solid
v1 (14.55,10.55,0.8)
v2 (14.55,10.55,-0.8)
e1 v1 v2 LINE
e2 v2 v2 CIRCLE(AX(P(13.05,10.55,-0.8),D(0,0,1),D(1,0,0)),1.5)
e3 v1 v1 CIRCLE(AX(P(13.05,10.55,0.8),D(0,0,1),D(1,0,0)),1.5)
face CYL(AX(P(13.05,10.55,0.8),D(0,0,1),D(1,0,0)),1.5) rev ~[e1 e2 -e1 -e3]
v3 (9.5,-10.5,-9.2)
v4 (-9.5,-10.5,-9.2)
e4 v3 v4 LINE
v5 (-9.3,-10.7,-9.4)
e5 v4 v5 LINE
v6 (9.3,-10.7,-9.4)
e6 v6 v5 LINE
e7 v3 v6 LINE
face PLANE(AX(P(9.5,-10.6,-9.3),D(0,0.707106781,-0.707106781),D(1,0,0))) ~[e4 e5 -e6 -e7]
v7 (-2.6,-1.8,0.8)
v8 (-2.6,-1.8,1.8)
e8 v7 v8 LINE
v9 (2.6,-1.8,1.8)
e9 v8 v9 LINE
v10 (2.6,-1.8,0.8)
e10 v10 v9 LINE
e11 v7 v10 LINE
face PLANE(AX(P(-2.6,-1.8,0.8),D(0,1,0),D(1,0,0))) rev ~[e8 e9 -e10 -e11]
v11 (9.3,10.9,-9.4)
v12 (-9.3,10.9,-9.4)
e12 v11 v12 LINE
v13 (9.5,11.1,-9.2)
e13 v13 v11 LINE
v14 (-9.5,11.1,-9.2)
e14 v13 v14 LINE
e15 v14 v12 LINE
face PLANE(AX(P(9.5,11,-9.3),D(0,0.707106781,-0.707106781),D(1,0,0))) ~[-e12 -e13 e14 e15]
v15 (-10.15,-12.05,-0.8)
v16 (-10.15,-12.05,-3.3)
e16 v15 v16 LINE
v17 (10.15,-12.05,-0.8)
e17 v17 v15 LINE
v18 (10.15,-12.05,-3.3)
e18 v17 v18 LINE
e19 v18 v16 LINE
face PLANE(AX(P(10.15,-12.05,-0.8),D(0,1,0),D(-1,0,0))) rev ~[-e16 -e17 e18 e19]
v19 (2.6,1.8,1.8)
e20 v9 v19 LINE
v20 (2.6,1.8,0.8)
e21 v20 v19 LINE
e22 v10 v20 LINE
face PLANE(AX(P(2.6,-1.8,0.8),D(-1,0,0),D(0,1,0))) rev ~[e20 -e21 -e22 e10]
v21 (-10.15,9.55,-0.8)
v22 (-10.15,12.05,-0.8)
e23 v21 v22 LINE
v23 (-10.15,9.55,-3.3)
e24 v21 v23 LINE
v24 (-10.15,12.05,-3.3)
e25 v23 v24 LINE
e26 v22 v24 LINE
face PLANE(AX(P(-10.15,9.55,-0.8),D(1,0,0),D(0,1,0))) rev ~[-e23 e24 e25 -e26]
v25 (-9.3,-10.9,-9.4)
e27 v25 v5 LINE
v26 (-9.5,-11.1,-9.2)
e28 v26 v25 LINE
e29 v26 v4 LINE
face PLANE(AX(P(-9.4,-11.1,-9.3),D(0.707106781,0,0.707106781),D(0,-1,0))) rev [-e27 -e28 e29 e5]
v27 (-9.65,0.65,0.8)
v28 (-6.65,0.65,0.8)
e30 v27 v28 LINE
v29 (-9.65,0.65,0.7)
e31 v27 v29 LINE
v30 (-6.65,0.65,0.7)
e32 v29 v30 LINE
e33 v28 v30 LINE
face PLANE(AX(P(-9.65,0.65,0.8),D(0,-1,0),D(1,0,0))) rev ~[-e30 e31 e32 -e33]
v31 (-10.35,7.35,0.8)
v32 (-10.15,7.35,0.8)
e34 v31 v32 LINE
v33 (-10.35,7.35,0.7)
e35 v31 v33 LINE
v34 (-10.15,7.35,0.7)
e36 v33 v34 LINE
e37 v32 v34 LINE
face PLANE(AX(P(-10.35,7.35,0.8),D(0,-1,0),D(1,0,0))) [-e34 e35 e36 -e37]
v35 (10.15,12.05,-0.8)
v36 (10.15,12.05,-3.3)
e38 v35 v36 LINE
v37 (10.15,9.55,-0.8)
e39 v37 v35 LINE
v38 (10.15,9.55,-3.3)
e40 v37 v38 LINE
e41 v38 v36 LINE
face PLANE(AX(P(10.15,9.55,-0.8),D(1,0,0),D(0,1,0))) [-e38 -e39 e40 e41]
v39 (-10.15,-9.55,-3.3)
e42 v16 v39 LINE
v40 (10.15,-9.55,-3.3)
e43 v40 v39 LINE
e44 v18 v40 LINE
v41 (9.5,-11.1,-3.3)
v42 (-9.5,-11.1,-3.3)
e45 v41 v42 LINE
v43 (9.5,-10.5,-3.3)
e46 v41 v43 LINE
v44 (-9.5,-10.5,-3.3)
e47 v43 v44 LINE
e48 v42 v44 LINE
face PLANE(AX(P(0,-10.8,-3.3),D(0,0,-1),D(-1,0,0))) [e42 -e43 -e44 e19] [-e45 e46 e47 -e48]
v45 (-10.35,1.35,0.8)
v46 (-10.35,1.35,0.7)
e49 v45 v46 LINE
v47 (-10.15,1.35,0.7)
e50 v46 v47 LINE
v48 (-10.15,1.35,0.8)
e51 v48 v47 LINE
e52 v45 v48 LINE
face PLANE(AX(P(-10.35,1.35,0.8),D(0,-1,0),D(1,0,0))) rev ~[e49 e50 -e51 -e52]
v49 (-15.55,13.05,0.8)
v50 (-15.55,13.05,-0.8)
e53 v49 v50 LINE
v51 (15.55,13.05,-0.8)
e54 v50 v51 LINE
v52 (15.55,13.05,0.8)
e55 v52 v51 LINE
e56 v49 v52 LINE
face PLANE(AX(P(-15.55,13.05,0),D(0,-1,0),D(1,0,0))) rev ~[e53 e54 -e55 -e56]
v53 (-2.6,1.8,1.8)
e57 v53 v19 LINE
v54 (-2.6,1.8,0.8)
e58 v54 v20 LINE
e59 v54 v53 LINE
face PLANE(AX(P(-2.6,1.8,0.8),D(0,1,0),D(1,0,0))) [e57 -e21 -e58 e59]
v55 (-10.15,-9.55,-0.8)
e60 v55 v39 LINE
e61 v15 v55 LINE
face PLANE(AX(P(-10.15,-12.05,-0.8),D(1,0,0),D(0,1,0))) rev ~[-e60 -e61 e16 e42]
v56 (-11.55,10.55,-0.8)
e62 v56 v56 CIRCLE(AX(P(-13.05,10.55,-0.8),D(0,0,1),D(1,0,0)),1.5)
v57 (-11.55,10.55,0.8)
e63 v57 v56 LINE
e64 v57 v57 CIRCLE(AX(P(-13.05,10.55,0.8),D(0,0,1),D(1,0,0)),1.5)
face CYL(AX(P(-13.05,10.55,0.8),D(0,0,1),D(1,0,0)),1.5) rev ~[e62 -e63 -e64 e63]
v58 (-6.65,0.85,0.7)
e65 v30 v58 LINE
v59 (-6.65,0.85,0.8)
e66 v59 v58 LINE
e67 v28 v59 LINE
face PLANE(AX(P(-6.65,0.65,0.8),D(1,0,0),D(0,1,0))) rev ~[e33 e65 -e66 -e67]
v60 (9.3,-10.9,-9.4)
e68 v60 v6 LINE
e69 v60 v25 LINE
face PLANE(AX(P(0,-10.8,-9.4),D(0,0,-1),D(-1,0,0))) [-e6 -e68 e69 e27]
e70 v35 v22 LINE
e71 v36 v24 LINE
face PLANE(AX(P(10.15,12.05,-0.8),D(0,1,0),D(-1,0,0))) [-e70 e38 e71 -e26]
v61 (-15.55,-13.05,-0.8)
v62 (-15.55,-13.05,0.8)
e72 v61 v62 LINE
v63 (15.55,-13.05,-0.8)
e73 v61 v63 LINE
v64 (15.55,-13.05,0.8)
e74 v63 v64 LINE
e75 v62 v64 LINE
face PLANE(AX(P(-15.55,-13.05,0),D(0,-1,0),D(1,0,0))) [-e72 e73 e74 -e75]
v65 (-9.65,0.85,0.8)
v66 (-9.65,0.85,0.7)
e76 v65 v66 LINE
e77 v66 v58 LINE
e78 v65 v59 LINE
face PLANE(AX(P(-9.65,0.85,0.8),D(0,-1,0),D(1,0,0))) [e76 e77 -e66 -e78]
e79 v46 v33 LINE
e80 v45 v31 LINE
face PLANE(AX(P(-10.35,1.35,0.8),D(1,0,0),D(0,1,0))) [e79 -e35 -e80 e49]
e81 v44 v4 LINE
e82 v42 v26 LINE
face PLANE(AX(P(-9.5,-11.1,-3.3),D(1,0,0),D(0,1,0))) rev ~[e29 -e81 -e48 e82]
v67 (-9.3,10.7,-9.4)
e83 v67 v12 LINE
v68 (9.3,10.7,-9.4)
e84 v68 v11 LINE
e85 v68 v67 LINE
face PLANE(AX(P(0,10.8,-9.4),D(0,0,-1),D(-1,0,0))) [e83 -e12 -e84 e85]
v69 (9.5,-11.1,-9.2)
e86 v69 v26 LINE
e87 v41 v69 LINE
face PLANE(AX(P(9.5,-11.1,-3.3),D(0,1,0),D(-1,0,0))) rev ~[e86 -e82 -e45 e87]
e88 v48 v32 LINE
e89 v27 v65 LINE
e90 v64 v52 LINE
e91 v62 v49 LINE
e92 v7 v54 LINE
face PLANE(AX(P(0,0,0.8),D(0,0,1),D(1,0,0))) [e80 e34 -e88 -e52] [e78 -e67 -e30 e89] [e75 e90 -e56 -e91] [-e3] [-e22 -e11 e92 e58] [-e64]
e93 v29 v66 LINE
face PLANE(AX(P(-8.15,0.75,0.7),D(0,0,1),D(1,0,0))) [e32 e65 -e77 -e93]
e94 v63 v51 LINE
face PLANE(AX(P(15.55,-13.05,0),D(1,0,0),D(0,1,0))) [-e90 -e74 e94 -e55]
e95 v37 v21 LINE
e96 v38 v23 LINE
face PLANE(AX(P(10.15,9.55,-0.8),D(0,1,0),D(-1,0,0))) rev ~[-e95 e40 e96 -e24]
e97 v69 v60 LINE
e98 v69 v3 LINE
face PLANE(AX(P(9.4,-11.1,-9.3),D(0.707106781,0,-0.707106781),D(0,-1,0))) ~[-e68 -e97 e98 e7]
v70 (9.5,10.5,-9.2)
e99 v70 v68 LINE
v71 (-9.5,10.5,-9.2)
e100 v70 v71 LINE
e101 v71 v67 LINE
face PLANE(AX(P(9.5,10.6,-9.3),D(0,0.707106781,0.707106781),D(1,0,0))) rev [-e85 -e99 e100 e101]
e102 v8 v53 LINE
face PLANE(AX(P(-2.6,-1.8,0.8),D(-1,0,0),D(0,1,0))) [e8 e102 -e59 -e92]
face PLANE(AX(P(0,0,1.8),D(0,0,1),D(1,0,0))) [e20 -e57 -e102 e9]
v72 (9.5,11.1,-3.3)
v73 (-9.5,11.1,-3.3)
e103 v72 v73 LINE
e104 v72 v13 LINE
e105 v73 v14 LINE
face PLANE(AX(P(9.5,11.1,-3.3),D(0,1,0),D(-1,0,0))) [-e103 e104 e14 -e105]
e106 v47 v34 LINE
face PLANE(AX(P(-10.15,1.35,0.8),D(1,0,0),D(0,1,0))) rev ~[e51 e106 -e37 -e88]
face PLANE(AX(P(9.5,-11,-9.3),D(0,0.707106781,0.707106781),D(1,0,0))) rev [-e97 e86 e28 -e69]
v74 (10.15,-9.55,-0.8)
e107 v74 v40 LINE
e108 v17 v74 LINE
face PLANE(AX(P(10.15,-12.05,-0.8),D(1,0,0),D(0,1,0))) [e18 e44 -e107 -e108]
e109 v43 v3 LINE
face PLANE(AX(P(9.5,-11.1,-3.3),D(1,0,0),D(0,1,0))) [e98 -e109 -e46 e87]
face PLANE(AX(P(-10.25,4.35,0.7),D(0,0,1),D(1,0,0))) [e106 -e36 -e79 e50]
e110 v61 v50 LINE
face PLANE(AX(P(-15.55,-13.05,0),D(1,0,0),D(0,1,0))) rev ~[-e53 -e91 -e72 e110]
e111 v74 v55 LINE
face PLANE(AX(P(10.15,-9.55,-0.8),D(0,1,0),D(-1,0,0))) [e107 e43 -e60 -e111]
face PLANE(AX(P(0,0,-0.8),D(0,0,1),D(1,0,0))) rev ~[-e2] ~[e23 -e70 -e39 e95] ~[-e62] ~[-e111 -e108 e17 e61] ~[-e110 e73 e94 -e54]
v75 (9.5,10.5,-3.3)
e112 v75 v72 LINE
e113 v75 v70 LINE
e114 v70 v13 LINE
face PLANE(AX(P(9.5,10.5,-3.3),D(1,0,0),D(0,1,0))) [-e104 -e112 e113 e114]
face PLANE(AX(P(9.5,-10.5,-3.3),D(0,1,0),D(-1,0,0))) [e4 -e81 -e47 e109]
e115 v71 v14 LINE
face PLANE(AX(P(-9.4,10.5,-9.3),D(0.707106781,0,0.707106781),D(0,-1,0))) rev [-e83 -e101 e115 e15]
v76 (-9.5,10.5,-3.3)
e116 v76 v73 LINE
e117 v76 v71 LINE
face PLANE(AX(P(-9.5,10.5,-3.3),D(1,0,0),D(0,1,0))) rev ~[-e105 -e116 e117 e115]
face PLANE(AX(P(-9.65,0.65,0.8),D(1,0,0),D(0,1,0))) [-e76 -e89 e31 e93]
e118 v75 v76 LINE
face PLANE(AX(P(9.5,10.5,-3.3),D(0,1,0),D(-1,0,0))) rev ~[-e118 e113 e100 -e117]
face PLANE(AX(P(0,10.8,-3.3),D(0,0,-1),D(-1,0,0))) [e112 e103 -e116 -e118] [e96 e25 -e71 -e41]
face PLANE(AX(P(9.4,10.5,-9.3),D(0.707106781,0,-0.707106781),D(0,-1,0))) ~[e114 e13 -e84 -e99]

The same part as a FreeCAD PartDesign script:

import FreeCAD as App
import Part
import Sketcher
from FreeCAD import Vector


def edges_at(feature, points):
    """Names of the edges that pass closest to the given points."""
    edges = feature.Shape.Edges
    near = lambda p: min(range(len(edges)), key=lambda i: edges[i].distToShape(Part.Vertex(*p))[0])
    return sorted({f"Edge{near(p) + 1}" for p in points})


def add_polygon(sketch, points):
    """Adds a closed chain of lines whose ends are joined by coincident constraints."""
    first, n = sketch.GeometryCount, len(points)
    for a, b in zip(points, points[1:] + points[:1]):
        sketch.addGeometry(Part.LineSegment(App.Vector(*a, 0), App.Vector(*b, 0)), False)
    for i in range(n):
        sketch.addConstraint(Sketcher.Constraint("Coincident", first + i, 2, first + (i + 1) % n, 1))

doc = App.newDocument("Part")
body = doc.addObject("PartDesign::Body", "Body")

# Sketch on XY plane
sketch1 = body.newObject("Sketcher::SketchObject", "Sketch")
sketch1.AttachmentSupport = (doc.getObject("XY_Plane"), [""])
sketch1.MapMode = "FlatFace"
add_polygon(sketch1, [(-16, 13), (-16, -13), (16, -13), (16, 13)])  # lines 0-3
sketch1.addConstraint(Sketcher.Constraint("Vertical", 0))
sketch1.addConstraint(Sketcher.Constraint("Horizontal", 1))
sketch1.addConstraint(Sketcher.Constraint("Vertical", 2))
sketch1.addConstraint(Sketcher.Constraint("Horizontal", 3))
sketch1.addConstraint(Sketcher.Constraint("Symmetric", 0, 2, 2, 2, -1, 1))
sketch1.addConstraint(Sketcher.Constraint("DistanceX", 1, 1, 1, 2, 31.1))
sketch1.addConstraint(Sketcher.Constraint("DistanceY", 0, 2, 0, 1, 26.1))
pad1 = body.newObject("PartDesign::Pad", "Pad")
pad1.Profile = sketch1
pad1.Length = 1.6
pad1.Midplane = True

# Sketch on XY plane
sketch2 = body.newObject("Sketcher::SketchObject", "Sketch001")
sketch2.AttachmentSupport = (doc.getObject("XY_Plane"), [""])
sketch2.MapMode = "FlatFace"
sketch2.AttachmentOffset = App.Placement(Vector(0, 0, -0.8), App.Rotation())
add_polygon(sketch2, [(10.2, -9.6), (10.2, -12.1), (-10.2, -12.1), (-10.2, -9.6)])  # lines 0-3
add_polygon(sketch2, [(10.2, 12.1), (10.2, 9.6), (-10.2, 9.6), (-10.2, 12.1)])  # lines 4-7
sketch2.addConstraint(Sketcher.Constraint("Vertical", 0))
sketch2.addConstraint(Sketcher.Constraint("Horizontal", 1))
sketch2.addConstraint(Sketcher.Constraint("Vertical", 2))
sketch2.addConstraint(Sketcher.Constraint("Horizontal", 3))
sketch2.addConstraint(Sketcher.Constraint("Vertical", 4))
sketch2.addConstraint(Sketcher.Constraint("Horizontal", 5))
sketch2.addConstraint(Sketcher.Constraint("Vertical", 6))
sketch2.addConstraint(Sketcher.Constraint("Horizontal", 7))
sketch2.addConstraint(Sketcher.Constraint("Symmetric", 2, 2, 4, 2, -1, 1))
sketch2.addConstraint(Sketcher.Constraint("Symmetric", 0, 2, 6, 2, -1, 1))
sketch2.addConstraint(Sketcher.Constraint("Vertical", 3, 2, 4, 2))
sketch2.addConstraint(Sketcher.Constraint("DistanceX", 1, 2, 1, 1, 20.3))
sketch2.addConstraint(Sketcher.Constraint("DistanceY", 0, 2, 0, 1, 2.5))
sketch2.addConstraint(Sketcher.Constraint("DistanceY", 3, 2, 4, 2, 19.1))
pad2 = body.newObject("PartDesign::Pad", "Pad001")
pad2.Profile = sketch2
pad2.Length = 2.5
pad2.Reversed = True

# Sketch on XY plane
sketch3 = body.newObject("Sketcher::SketchObject", "Sketch002")
sketch3.AttachmentSupport = (doc.getObject("XY_Plane"), [""])
sketch3.MapMode = "FlatFace"
sketch3.AttachmentOffset = App.Placement(Vector(0, 0, -3.3), App.Rotation())
add_polygon(sketch3, [(9.5, 11.1), (9.5, 10.5), (-9.5, 10.5), (-9.5, 11.1)])  # lines 0-3
add_polygon(sketch3, [(9.5, -10.5), (9.5, -11.1), (-9.5, -11.1), (-9.5, -10.5)])  # lines 4-7
sketch3.addConstraint(Sketcher.Constraint("Vertical", 0))
sketch3.addConstraint(Sketcher.Constraint("Horizontal", 1))
sketch3.addConstraint(Sketcher.Constraint("Vertical", 2))
sketch3.addConstraint(Sketcher.Constraint("Horizontal", 3))
sketch3.addConstraint(Sketcher.Constraint("Vertical", 4))
sketch3.addConstraint(Sketcher.Constraint("Horizontal", 5))
sketch3.addConstraint(Sketcher.Constraint("Vertical", 6))
sketch3.addConstraint(Sketcher.Constraint("Horizontal", 7))
sketch3.addConstraint(Sketcher.Constraint("Symmetric", 2, 2, 4, 2, -1, 1))
sketch3.addConstraint(Sketcher.Constraint("Symmetric", 0, 2, 6, 2, -1, 1))
sketch3.addConstraint(Sketcher.Constraint("Vertical", 3, 2, 4, 2))
sketch3.addConstraint(Sketcher.Constraint("DistanceX", 1, 2, 1, 1, 19.0))
sketch3.addConstraint(Sketcher.Constraint("DistanceY", 0, 2, 0, 1, 0.6))
sketch3.addConstraint(Sketcher.Constraint("DistanceY", 6, 2, 1, 2, 21.0))
pad3 = body.newObject("PartDesign::Pad", "Pad002")
pad3.Profile = sketch3
pad3.Length = 6.1
pad3.Reversed = True
doc.recompute()

chamfer = body.newObject("PartDesign::Chamfer", "Chamfer")
chamfer.Base = (pad3, edges_at(pad3, [
    (9.5, 10.8, -9.4),
    (0, 10.5, -9.4),
    (-9.5, 10.8, -9.4),
    (0, 11.1, -9.4),
    (0, -11.1, -9.4),
    (-9.5, -10.8, -9.4),
    (0, -10.5, -9.4),
    (9.5, -10.8, -9.4),
]))
chamfer.Size = 0.2

# Sketch on XY plane
sketch4 = body.newObject("Sketcher::SketchObject", "Sketch003")
sketch4.AttachmentSupport = (doc.getObject("XY_Plane"), [""])
sketch4.MapMode = "FlatFace"
sketch4.AttachmentOffset = App.Placement(Vector(0, 0, 0.8), App.Rotation())
add_polygon(sketch4, [(-2.6, 1.8), (-2.6, -1.8), (2.6, -1.8), (2.6, 1.8)])  # lines 0-3
sketch4.addConstraint(Sketcher.Constraint("Vertical", 0))
sketch4.addConstraint(Sketcher.Constraint("Horizontal", 1))
sketch4.addConstraint(Sketcher.Constraint("Vertical", 2))
sketch4.addConstraint(Sketcher.Constraint("Horizontal", 3))
sketch4.addConstraint(Sketcher.Constraint("Symmetric", 0, 2, 2, 2, -1, 1))
sketch4.addConstraint(Sketcher.Constraint("DistanceX", 1, 1, 1, 2, 5.2))
sketch4.addConstraint(Sketcher.Constraint("DistanceY", 0, 2, 0, 1, 3.6))
pad4 = body.newObject("PartDesign::Pad", "Pad003")
pad4.Profile = sketch4
pad4.Length = 1

# Sketch on XY plane
sketch5 = body.newObject("Sketcher::SketchObject", "Sketch004")
sketch5.AttachmentSupport = (doc.getObject("XY_Plane"), [""])
sketch5.MapMode = "FlatFace"
sketch5.AttachmentOffset = App.Placement(Vector(0, 0, 0.8), App.Rotation())
add_polygon(sketch5, [(-10.35, 7.35), (-10.35, 1.35), (-10.15, 1.35), (-10.15, 7.35)])  # lines 0-3
add_polygon(sketch5, [(-9.65, 0.85), (-9.65, 0.65), (-6.65, 0.65), (-6.65, 0.85)])  # lines 4-7
sketch5.addConstraint(Sketcher.Constraint("Vertical", 0))
sketch5.addConstraint(Sketcher.Constraint("Horizontal", 1))
sketch5.addConstraint(Sketcher.Constraint("Vertical", 2))
sketch5.addConstraint(Sketcher.Constraint("Horizontal", 3))
sketch5.addConstraint(Sketcher.Constraint("Vertical", 4))
sketch5.addConstraint(Sketcher.Constraint("Horizontal", 5))
sketch5.addConstraint(Sketcher.Constraint("Vertical", 6))
sketch5.addConstraint(Sketcher.Constraint("Horizontal", 7))
sketch5.addConstraint(Sketcher.Constraint("Equal", 3, 4))
sketch5.addConstraint(Sketcher.Constraint("DistanceX", 5, 1, 5, 2, 3.0))
sketch5.addConstraint(Sketcher.Constraint("DistanceY", 0, 2, 0, 1, 6.0))
sketch5.addConstraint(Sketcher.Constraint("DistanceX", 1, 1, 1, 2, 0.2))
sketch5.addConstraint(Sketcher.Constraint("DistanceX", 1, 2, 4, 2, 0.5))
sketch5.addConstraint(Sketcher.Constraint("DistanceY", 4, 2, 1, 2, 0.7))
sketch5.addConstraint(Sketcher.Constraint("DistanceX", 0, 2, -1, 1, 10.35))
sketch5.addConstraint(Sketcher.Constraint("DistanceY", -1, 1, 0, 2, 1.35))
pocket1 = body.newObject("PartDesign::Pocket", "Pocket")
pocket1.Profile = sketch5
pocket1.Length = 0.1

# Sketch on XY plane
sketch6 = body.newObject("Sketcher::SketchObject", "Sketch005")
sketch6.AttachmentSupport = (doc.getObject("XY_Plane"), [""])
sketch6.MapMode = "FlatFace"
sketch6.AttachmentOffset = App.Placement(Vector(0, 0, 0.8), App.Rotation())
sketch6.addGeometry(Part.Circle(Vector(-13.1, 10.6, 0), Vector(0, 0, 1), 1.5), False)
sketch6.addGeometry(Part.Circle(Vector(13.1, 10.6, 0), Vector(0, 0, 1), 1.5), False)
sketch6.addConstraint(Sketcher.Constraint("Equal", 0, 1))
sketch6.addConstraint(Sketcher.Constraint("Symmetric", 0, 3, 1, 3, -2))
sketch6.addConstraint(Sketcher.Constraint("Diameter", 0, 3.0))
sketch6.addConstraint(Sketcher.Constraint("DistanceX", 0, 3, 1, 3, 26.1))
sketch6.addConstraint(Sketcher.Constraint("DistanceY", -1, 1, 0, 3, 10.55))
pocket2 = body.newObject("PartDesign::Pocket", "Pocket001")
pocket2.Profile = sketch6
pocket2.Type = "ThroughAll"

doc.recompute()
